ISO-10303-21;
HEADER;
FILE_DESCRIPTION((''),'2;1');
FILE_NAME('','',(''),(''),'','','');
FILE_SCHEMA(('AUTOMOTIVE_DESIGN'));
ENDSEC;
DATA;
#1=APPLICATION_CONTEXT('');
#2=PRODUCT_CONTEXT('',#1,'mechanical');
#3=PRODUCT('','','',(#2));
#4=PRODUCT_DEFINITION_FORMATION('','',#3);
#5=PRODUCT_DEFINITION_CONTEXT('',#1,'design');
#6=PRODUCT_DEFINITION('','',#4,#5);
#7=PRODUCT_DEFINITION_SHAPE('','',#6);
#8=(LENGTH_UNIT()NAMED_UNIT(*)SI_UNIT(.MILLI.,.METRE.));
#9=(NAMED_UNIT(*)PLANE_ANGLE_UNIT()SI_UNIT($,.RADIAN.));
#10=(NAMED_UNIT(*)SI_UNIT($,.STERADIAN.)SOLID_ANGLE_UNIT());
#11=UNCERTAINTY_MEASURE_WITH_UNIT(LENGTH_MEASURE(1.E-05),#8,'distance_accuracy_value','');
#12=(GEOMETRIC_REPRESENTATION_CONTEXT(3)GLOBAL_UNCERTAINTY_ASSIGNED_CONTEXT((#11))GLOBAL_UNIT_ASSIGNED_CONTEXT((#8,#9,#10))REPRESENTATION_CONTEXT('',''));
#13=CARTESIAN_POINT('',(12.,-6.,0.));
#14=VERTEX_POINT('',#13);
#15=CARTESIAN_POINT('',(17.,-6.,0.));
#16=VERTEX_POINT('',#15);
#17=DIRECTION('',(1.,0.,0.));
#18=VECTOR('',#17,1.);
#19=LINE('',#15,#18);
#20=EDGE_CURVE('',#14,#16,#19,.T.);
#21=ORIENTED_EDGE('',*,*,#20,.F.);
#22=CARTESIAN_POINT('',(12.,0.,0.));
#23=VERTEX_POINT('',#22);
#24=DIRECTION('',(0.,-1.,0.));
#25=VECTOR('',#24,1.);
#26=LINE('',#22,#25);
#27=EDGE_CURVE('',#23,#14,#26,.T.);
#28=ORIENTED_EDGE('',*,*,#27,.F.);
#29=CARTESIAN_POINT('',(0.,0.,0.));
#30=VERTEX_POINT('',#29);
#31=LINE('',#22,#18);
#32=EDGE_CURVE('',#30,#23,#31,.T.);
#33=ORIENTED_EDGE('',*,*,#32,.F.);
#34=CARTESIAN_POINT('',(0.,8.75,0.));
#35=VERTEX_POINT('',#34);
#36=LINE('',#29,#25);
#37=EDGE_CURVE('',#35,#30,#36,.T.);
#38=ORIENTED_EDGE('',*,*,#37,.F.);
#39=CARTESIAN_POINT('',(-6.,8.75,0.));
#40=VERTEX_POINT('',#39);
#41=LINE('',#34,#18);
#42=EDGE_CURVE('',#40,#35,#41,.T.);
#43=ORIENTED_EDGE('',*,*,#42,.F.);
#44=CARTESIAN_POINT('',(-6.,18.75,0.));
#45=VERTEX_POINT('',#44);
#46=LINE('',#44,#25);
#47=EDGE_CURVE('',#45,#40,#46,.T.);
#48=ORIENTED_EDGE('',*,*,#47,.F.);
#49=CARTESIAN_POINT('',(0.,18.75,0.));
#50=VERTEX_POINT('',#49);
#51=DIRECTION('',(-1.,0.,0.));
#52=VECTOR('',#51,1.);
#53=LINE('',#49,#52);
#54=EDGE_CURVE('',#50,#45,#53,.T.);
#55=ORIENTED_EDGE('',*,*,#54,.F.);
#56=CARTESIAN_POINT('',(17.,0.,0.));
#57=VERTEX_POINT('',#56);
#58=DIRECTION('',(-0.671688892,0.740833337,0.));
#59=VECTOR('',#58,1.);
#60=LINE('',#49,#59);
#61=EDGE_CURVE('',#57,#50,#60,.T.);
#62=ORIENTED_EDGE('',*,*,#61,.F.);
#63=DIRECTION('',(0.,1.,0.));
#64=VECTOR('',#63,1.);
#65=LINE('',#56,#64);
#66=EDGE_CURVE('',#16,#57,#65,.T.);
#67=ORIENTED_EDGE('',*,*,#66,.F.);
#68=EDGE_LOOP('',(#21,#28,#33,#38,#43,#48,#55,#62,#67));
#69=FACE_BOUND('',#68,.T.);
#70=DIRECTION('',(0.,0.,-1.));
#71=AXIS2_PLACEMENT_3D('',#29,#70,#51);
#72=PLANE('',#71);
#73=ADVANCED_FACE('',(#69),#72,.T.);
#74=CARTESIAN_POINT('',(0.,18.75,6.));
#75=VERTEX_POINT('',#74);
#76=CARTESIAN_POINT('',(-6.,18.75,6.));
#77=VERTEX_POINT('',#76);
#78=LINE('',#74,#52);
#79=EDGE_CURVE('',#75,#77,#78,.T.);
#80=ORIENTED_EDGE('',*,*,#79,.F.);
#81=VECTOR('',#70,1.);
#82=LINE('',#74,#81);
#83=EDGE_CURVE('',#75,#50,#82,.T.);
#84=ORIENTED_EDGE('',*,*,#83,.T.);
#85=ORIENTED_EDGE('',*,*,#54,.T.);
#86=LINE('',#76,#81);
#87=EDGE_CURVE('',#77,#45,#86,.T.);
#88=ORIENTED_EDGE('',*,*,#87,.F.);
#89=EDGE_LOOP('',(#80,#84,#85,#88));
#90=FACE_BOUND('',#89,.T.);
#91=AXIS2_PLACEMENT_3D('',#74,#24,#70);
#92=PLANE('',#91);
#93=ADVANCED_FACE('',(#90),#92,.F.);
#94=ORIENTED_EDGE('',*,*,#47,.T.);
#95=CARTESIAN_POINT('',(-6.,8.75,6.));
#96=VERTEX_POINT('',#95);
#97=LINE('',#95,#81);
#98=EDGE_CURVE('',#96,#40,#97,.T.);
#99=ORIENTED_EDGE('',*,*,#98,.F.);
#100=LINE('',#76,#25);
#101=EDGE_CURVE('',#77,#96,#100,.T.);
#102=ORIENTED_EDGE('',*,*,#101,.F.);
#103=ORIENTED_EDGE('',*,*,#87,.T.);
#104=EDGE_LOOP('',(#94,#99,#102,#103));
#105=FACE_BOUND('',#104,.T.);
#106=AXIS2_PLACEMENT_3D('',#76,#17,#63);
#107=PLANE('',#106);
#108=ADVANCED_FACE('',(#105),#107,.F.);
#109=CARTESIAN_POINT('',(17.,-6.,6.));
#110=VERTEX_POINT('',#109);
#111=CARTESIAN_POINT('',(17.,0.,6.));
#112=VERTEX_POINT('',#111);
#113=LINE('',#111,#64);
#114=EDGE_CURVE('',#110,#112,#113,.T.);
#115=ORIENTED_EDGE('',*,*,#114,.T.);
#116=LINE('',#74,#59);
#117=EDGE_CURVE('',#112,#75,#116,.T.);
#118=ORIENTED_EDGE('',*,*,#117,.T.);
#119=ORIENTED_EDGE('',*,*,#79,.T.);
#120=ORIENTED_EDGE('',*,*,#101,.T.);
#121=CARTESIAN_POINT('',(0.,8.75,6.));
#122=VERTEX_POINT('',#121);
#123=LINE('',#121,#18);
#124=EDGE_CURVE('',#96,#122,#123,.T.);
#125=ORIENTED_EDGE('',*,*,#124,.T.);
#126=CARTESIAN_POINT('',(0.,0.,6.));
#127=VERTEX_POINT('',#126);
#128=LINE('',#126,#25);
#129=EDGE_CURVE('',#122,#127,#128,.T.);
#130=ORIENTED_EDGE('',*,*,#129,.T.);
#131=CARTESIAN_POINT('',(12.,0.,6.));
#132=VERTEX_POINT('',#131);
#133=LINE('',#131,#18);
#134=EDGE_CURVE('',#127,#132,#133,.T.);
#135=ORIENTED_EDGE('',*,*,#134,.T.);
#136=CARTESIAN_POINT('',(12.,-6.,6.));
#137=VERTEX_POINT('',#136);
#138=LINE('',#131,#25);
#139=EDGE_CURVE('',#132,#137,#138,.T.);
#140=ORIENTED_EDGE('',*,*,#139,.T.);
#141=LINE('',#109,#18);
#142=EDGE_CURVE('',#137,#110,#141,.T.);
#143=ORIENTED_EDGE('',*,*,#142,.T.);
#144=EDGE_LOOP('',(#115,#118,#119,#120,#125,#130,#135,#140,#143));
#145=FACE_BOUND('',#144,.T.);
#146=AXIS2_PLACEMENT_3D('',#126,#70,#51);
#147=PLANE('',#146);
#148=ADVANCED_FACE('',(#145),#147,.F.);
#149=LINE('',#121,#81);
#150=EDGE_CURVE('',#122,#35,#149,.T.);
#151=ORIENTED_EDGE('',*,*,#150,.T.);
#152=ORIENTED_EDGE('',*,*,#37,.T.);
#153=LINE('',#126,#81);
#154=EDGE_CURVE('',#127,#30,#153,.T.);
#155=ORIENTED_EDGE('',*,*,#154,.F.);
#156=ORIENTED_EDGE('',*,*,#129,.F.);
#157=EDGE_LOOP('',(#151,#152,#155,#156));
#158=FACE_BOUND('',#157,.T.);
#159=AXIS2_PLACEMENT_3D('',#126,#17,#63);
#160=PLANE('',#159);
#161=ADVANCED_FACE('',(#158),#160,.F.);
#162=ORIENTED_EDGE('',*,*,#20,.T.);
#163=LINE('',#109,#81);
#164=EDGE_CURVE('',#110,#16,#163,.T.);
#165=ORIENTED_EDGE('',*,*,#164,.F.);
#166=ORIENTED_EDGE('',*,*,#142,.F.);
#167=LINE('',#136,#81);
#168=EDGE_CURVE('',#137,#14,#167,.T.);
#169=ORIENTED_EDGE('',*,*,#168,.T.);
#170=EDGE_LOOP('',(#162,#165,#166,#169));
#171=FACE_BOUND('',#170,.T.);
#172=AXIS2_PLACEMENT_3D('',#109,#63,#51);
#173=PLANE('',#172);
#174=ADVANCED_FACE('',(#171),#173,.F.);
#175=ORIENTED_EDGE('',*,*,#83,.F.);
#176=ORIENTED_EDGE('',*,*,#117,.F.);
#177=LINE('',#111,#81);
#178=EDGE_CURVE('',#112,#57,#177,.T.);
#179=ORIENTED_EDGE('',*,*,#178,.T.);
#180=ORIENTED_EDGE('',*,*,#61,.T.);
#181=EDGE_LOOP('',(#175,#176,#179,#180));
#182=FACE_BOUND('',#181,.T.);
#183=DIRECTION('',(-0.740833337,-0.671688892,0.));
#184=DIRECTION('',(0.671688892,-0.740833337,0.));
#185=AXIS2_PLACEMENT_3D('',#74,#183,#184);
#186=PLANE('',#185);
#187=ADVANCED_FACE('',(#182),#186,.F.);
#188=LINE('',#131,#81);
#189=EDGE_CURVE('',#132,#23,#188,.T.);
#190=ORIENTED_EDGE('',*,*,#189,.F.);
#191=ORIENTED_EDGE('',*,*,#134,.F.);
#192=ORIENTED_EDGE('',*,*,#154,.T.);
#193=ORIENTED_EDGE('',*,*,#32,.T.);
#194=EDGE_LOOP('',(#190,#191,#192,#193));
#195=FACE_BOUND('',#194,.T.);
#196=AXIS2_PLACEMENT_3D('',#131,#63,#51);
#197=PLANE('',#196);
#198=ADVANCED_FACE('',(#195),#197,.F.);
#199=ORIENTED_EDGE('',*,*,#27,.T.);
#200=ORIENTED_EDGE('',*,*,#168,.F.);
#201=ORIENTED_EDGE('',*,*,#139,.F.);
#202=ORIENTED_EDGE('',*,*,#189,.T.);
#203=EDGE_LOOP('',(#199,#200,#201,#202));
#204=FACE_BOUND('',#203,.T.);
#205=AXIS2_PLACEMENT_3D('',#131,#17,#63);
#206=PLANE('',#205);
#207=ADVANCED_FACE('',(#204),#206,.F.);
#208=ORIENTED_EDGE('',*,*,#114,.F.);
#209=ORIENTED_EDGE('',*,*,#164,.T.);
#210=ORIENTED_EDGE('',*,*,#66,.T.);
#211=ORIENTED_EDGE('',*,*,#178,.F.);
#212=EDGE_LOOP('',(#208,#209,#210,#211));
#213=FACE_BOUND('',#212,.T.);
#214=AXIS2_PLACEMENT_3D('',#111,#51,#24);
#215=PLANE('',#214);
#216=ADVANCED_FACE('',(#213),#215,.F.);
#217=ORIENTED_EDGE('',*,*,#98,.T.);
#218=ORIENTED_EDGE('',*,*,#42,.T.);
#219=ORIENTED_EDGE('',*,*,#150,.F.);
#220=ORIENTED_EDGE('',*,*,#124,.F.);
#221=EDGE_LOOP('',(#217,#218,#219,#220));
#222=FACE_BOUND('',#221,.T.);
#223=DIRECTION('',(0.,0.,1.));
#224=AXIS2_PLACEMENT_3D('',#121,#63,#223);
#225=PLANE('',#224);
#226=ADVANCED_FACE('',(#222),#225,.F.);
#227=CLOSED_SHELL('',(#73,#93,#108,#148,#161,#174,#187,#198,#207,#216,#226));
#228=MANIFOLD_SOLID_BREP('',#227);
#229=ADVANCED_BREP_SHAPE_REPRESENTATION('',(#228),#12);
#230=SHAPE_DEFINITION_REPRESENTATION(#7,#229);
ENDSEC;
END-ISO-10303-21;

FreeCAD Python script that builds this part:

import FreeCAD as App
import Part
import Sketcher
from FreeCAD import Vector
Q = App.Units.Quantity

doc = App.newDocument("Part")
body = doc.addObject("PartDesign::Body", "Body")

# Sketch on XY plane
sketch1 = doc.addObject("Sketcher::SketchObject", "Sketch")
body.addObject(sketch1)
sketch1.AttachmentSupport = (doc.XY_Plane, [""])
sketch1.MapMode = "FlatFace"
sketch1.addGeometry([
    Part.LineSegment(Vector(0, 9, 0), Vector(0, 0, 0)),  # 0
    Part.LineSegment(Vector(0, 0, 0), Vector(12, 0, 0)),  # 1
    Part.LineSegment(Vector(12, 0, 0), Vector(12, -6, 0)),  # 2
    Part.LineSegment(Vector(12, -6, 0), Vector(17, -6, 0)),  # 3
    Part.LineSegment(Vector(17, -6, 0), Vector(17, 0, 0)),  # 4
    Part.LineSegment(Vector(17, 0, 0), Vector(0, 19, 0)),  # 5
    Part.LineSegment(Vector(0, 19, 0), Vector(-6, 19, 0)),  # 6
    Part.LineSegment(Vector(-6, 19, 0), Vector(-6, 9, 0)),  # 7
    Part.LineSegment(Vector(-6, 9, 0), Vector(0, 9, 0)),  # 8
], False)
sketch1.addConstraint([
    Sketcher.Constraint("Coincident", 0, 2, 1, 1),
    Sketcher.Constraint("Coincident", 1, 2, 2, 1),
    Sketcher.Constraint("Coincident", 2, 2, 3, 1),
    Sketcher.Constraint("Coincident", 3, 2, 4, 1),
    Sketcher.Constraint("Coincident", 4, 2, 5, 1),
    Sketcher.Constraint("Coincident", 5, 2, 6, 1),
    Sketcher.Constraint("Coincident", 6, 2, 7, 1),
    Sketcher.Constraint("Coincident", 7, 2, 8, 1),
    Sketcher.Constraint("Coincident", 8, 2, 0, 1),
    Sketcher.Constraint("Vertical", 0),
    Sketcher.Constraint("Horizontal", 1),
    Sketcher.Constraint("Vertical", 2),
    Sketcher.Constraint("Horizontal", 3),
    Sketcher.Constraint("Vertical", 4),
    Sketcher.Constraint("Horizontal", 6),
    Sketcher.Constraint("Vertical", 7),
    Sketcher.Constraint("Horizontal", 8),
    Sketcher.Constraint("Coincident", 0, 2, -1, 1),
    Sketcher.Constraint("PointOnObject", 4, 2, -1),
    Sketcher.Constraint("PointOnObject", 5, 2, -2),
    Sketcher.Constraint("Equal", 8, 2),
    Sketcher.Constraint("DistanceX", 1, 1, 1, 2, Q("12 mm")),
    Sketcher.Constraint("DistanceX", 3, 1, 3, 2, Q("5 mm")),
    Sketcher.Constraint("DistanceX", 6, 2, 6, 1, Q("6 mm")),
    Sketcher.Constraint("DistanceY", 7, 2, 7, 1, Q("10 mm")),
    Sketcher.Constraint("DistanceY", 0, 2, 0, 1, Q("8.75 mm")),
])
pad1 = doc.addObject("PartDesign::Pad", "Pad")
body.addObject(pad1)
pad1.Profile = sketch1
pad1.Length = 6

doc.recompute()
